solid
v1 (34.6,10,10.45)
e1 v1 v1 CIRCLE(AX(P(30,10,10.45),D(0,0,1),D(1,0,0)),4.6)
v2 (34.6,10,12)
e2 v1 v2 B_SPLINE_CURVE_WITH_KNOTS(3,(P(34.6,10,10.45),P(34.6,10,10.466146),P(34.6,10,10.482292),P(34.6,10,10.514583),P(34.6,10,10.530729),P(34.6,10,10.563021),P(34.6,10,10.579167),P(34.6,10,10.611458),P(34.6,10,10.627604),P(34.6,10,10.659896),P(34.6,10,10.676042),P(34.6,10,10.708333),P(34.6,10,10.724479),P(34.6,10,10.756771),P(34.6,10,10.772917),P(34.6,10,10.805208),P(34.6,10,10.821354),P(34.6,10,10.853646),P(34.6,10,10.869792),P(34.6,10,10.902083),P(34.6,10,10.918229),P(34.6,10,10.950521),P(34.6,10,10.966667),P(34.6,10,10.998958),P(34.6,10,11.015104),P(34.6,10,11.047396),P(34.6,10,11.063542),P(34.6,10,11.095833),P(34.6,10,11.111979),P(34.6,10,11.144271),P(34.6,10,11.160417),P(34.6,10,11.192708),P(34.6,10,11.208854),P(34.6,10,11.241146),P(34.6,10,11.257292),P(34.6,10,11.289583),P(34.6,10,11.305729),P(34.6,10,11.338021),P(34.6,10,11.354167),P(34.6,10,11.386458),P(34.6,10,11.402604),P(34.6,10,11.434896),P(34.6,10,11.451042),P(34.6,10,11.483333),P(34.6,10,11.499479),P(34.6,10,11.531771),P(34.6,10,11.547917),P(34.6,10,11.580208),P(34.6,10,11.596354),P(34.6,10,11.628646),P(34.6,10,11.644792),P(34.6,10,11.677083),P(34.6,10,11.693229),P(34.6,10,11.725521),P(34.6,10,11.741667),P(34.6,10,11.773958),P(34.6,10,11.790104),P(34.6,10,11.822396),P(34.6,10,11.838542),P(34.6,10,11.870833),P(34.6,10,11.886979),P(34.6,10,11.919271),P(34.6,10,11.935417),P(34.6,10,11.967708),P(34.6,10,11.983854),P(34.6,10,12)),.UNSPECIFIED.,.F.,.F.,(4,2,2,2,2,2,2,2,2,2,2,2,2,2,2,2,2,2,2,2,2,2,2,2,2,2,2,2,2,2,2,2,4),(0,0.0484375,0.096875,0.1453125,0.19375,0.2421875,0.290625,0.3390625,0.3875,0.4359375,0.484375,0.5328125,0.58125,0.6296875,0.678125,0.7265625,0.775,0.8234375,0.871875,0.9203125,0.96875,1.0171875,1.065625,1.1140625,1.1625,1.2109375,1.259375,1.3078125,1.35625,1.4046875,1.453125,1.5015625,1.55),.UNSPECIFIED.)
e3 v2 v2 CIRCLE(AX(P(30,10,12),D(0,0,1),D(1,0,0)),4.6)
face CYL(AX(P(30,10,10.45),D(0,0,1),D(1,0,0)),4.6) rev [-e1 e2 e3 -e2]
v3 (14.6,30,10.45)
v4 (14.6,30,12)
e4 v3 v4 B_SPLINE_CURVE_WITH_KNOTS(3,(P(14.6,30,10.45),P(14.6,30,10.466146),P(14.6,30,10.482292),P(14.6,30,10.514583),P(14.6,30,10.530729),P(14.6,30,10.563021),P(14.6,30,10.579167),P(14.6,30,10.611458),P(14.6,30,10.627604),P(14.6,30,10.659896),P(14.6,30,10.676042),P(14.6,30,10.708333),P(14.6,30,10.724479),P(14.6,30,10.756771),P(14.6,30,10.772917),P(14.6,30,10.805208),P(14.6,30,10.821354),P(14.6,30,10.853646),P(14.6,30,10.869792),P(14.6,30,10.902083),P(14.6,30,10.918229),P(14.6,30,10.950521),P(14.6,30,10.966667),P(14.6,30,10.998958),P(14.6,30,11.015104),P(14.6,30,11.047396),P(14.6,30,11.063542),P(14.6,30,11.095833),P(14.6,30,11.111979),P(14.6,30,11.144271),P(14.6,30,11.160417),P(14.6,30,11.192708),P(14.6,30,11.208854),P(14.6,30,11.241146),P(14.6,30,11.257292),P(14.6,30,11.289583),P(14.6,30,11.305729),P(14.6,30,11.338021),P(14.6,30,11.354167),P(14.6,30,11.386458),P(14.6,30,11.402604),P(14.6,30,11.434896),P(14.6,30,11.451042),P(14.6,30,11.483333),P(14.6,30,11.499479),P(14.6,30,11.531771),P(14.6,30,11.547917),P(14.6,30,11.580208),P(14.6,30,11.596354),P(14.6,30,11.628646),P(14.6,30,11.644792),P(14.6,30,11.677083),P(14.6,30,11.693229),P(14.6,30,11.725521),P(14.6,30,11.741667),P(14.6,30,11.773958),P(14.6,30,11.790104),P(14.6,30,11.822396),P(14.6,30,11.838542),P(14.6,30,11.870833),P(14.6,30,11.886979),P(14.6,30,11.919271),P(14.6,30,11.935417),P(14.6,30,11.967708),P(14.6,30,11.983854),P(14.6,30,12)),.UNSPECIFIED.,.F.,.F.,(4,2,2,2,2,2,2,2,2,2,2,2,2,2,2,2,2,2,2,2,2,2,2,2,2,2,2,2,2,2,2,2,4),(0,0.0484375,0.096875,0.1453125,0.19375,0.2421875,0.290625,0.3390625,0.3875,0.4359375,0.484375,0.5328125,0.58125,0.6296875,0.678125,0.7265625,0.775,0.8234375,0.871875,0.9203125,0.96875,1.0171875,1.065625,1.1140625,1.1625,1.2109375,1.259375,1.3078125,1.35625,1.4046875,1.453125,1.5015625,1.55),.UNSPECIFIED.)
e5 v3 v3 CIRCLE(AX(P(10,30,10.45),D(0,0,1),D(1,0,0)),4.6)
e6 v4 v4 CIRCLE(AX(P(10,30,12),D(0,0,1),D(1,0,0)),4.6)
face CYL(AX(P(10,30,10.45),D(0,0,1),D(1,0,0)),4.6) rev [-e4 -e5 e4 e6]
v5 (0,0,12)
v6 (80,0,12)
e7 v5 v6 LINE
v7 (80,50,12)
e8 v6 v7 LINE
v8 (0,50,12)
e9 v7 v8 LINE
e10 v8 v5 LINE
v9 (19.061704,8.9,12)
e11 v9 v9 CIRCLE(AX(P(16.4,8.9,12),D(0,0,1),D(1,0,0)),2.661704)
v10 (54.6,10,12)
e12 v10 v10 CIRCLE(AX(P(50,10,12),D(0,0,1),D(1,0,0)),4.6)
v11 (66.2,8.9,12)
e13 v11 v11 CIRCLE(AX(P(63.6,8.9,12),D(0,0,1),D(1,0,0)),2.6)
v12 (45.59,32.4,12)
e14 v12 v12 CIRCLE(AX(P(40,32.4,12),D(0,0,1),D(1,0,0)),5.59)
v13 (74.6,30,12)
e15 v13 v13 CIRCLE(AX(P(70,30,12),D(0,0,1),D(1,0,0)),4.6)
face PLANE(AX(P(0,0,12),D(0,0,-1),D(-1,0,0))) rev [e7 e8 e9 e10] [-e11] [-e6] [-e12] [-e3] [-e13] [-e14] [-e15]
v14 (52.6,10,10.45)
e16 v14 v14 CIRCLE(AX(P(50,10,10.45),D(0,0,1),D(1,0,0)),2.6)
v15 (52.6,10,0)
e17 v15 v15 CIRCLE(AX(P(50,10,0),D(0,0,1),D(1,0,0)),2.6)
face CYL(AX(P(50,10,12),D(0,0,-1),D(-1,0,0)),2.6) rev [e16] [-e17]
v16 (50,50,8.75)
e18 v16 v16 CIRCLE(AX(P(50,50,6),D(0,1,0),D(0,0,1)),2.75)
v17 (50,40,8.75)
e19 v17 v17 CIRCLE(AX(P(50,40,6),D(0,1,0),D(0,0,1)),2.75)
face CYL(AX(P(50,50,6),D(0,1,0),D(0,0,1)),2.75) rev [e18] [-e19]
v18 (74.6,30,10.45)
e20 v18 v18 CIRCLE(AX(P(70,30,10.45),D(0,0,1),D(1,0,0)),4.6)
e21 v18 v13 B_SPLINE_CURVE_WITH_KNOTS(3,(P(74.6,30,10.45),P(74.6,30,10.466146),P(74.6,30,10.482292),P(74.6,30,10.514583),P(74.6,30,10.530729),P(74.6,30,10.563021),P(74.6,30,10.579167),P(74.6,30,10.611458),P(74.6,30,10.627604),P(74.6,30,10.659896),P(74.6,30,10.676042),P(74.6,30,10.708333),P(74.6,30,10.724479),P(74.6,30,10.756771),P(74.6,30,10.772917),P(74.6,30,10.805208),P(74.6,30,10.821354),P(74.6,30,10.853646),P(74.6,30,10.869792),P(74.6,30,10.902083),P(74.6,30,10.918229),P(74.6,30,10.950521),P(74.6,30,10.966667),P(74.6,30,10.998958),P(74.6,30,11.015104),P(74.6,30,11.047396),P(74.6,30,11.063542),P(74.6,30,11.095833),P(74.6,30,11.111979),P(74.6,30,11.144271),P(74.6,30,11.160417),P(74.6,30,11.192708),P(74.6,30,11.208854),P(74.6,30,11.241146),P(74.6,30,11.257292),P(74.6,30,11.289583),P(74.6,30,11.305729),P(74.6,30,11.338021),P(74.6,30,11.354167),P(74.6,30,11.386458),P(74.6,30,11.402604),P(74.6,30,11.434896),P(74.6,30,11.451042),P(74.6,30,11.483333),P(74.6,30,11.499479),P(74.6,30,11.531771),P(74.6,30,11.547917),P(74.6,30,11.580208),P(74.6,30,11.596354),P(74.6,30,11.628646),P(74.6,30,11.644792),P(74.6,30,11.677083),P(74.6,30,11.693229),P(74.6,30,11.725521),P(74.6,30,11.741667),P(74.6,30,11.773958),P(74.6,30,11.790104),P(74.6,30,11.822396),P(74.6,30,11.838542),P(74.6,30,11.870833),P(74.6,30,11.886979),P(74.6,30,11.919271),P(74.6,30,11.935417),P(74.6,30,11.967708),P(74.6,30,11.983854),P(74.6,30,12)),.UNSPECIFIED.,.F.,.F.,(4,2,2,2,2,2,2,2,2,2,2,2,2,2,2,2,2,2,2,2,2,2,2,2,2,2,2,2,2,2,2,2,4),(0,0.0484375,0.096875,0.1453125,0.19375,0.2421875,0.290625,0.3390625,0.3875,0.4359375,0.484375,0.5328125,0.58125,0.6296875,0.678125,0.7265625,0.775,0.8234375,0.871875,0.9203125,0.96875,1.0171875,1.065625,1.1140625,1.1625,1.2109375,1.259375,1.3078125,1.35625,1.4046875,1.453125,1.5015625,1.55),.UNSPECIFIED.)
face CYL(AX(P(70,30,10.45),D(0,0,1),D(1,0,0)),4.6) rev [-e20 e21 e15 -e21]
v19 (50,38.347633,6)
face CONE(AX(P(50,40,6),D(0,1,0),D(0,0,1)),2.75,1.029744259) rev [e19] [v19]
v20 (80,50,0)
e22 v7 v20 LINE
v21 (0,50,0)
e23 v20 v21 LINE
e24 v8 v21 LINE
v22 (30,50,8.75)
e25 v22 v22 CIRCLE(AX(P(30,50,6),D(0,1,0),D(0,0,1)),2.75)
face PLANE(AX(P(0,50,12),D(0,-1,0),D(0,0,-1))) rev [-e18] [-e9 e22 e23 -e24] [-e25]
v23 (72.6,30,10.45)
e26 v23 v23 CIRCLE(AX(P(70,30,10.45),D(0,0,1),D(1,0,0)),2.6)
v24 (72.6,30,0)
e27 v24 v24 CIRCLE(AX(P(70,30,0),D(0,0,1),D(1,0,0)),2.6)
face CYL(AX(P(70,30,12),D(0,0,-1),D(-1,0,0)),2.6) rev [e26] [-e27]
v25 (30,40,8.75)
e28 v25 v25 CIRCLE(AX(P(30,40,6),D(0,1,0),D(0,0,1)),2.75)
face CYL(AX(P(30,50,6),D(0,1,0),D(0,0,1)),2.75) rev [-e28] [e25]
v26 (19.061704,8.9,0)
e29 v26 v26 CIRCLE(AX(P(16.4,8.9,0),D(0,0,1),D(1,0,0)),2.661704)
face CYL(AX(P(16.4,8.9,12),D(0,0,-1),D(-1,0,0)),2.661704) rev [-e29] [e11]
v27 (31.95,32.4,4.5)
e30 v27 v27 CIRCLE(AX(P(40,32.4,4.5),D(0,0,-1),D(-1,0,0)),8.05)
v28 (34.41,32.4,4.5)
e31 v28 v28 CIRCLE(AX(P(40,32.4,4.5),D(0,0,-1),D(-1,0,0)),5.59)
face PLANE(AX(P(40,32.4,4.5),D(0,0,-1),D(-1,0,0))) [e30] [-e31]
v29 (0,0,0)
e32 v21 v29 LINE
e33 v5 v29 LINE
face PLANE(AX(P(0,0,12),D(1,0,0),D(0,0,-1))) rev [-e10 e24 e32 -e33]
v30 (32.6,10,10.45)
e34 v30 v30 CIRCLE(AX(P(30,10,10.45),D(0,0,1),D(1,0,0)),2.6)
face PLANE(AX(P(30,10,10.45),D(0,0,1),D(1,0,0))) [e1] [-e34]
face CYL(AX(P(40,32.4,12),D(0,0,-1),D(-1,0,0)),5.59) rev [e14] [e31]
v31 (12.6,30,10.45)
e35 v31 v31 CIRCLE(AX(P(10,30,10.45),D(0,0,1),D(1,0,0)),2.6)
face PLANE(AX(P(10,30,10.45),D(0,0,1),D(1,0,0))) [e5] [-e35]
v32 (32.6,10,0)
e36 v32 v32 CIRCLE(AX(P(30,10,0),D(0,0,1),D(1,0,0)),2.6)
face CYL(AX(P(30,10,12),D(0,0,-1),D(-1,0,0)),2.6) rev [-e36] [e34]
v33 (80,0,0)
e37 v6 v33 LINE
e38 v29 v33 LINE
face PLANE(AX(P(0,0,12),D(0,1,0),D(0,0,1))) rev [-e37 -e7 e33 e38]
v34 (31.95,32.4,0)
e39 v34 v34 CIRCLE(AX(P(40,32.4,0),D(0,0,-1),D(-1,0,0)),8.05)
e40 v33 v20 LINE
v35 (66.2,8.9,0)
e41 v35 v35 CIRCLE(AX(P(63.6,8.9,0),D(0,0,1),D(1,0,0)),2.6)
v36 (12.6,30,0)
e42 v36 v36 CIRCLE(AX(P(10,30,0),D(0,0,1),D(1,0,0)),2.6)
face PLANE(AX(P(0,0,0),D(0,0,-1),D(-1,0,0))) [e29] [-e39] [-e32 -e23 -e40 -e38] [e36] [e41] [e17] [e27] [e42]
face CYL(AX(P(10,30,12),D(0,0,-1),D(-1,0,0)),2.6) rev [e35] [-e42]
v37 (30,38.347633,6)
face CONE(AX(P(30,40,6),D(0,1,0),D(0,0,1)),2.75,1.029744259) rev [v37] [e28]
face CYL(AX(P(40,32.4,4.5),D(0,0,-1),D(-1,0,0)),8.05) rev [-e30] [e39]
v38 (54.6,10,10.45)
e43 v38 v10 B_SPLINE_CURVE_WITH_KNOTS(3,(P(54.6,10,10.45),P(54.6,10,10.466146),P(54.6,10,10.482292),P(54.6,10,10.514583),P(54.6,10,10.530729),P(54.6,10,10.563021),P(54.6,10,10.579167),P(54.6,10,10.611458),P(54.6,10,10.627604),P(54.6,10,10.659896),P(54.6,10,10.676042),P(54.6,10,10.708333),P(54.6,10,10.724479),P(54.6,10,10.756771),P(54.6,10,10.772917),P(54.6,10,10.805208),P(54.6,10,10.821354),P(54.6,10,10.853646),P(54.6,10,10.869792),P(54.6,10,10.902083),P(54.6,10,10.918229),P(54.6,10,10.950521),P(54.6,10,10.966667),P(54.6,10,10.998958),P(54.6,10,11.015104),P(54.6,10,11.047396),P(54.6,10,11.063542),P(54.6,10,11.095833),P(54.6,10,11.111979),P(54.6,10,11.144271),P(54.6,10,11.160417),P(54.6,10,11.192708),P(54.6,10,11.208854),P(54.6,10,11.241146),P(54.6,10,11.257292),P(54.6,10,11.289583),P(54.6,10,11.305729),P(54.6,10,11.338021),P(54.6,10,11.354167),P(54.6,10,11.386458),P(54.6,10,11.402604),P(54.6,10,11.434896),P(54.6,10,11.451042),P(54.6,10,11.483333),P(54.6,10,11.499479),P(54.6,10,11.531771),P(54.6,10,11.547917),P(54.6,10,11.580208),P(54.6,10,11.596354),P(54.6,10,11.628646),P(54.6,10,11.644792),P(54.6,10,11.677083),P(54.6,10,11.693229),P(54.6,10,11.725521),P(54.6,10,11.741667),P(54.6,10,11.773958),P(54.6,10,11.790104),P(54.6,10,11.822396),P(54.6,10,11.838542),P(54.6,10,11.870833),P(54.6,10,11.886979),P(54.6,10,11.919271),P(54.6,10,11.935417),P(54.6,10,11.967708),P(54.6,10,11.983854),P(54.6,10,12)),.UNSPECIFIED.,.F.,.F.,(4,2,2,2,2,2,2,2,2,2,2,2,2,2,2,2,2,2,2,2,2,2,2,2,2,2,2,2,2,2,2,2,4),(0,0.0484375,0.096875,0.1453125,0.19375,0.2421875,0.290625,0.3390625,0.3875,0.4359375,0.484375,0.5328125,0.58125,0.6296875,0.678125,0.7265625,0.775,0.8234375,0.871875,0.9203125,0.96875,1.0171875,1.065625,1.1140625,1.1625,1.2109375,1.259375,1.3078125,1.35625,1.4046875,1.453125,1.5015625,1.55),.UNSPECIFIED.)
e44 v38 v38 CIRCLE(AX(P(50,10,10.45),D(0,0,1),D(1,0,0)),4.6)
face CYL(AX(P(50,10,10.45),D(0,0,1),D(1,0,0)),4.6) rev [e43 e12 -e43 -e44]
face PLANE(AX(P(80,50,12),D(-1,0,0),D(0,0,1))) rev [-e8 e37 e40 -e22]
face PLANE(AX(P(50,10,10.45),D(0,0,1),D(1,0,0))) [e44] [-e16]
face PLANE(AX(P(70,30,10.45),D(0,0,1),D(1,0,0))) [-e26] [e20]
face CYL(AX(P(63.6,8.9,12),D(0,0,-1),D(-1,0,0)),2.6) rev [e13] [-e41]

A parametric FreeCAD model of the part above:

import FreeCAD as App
import Part
import Sketcher
from FreeCAD import Vector


def add_polygon(sketch, points):
    """Adds a closed chain of lines whose ends are joined by coincident constraints."""
    first, n = sketch.GeometryCount, len(points)
    for a, b in zip(points, points[1:] + points[:1]):
        sketch.addGeometry(Part.LineSegment(App.Vector(*a, 0), App.Vector(*b, 0)), False)
    for i in range(n):
        sketch.addConstraint(Sketcher.Constraint("Coincident", first + i, 2, first + (i + 1) % n, 1))

doc = App.newDocument("Part")
body = doc.addObject("PartDesign::Body", "Body")

# Sketch on XY plane
sketch1 = body.newObject("Sketcher::SketchObject", "Sketch")
sketch1.AttachmentSupport = (doc.getObject("XY_Plane"), [""])
sketch1.MapMode = "FlatFace"
add_polygon(sketch1, [(0, 50), (0, 0), (80, 0), (80, 50)])  # lines 0-3
sketch1.addGeometry(Part.Circle(Vector(16.4, 8.9, 0), Vector(0, 0, 1), 2.7), False)  # 4
sketch1.addGeometry(Part.Circle(Vector(30, 10, 0), Vector(0, 0, 1), 2.6), False)  # 5
sketch1.addGeometry(Part.Circle(Vector(50, 10, 0), Vector(0, 0, 1), 2.6), False)  # 6
sketch1.addGeometry(Part.Circle(Vector(63.6, 8.9, 0), Vector(0, 0, 1), 2.6), False)  # 7
sketch1.addGeometry(Part.Circle(Vector(10, 30, 0), Vector(0, 0, 1), 2.6), False)  # 8
sketch1.addGeometry(Part.Circle(Vector(70, 30, 0), Vector(0, 0, 1), 2.6), False)  # 9
sketch1.addGeometry(Part.Circle(Vector(40, 32.4, 0), Vector(0, 0, 1), 5.6), False)  # 10
sketch1.addConstraint(Sketcher.Constraint("Vertical", 0))
sketch1.addConstraint(Sketcher.Constraint("Horizontal", 1))
sketch1.addConstraint(Sketcher.Constraint("Vertical", 2))
sketch1.addConstraint(Sketcher.Constraint("Horizontal", 3))
sketch1.addConstraint(Sketcher.Constraint("Coincident", 0, 2, -1, 1))
sketch1.addConstraint(Sketcher.Constraint("Equal", 5, 6))
sketch1.addConstraint(Sketcher.Constraint("Equal", 6, 7))
sketch1.addConstraint(Sketcher.Constraint("Equal", 7, 8))
sketch1.addConstraint(Sketcher.Constraint("Equal", 8, 9))
sketch1.addConstraint(Sketcher.Constraint("Horizontal", 5, 3, 6, 3))
sketch1.addConstraint(Sketcher.Constraint("Horizontal", 4, 3, 7, 3))
sketch1.addConstraint(Sketcher.Constraint("Horizontal", 8, 3, 9, 3))
sketch1.addConstraint(Sketcher.Constraint("Diameter", 5, 5.2))
sketch1.addConstraint(Sketcher.Constraint("Diameter", 10, 11.18))
sketch1.addConstraint(Sketcher.Constraint("DistanceX", 1, 1, 1, 2, 80.0))
sketch1.addConstraint(Sketcher.Constraint("DistanceY", 0, 2, 0, 1, 50.0))
sketch1.addConstraint(Sketcher.Constraint("DistanceX", -1, 1, 5, 3, 30.0))
sketch1.addConstraint(Sketcher.Constraint("DistanceY", -1, 1, 5, 3, 10.0))
sketch1.addConstraint(Sketcher.Constraint("DistanceX", -1, 1, 6, 3, 50.0))
sketch1.addConstraint(Sketcher.Constraint("DistanceX", -1, 1, 8, 3, 10.0))
sketch1.addConstraint(Sketcher.Constraint("DistanceY", -1, 1, 8, 3, 30.0))
sketch1.addConstraint(Sketcher.Constraint("DistanceX", -1, 1, 9, 3, 70.0))
sketch1.addConstraint(Sketcher.Constraint("DistanceX", -1, 1, 10, 3, 40.0))
sketch1.addConstraint(Sketcher.Constraint("DistanceX", -1, 1, 4, 3, 16.4))
sketch1.addConstraint(Sketcher.Constraint("DistanceY", -1, 1, 4, 3, 8.9))
sketch1.addConstraint(Sketcher.Constraint("DistanceX", -1, 1, 7, 3, 63.6))
sketch1.addConstraint(Sketcher.Constraint("DistanceY", -1, 1, 10, 3, 32.4))
sketch1.addConstraint(Sketcher.Constraint("Diameter", 4, 5.323407))
pad1 = body.newObject("PartDesign::Pad", "Pad")
pad1.Profile = sketch1
pad1.Length = 12

# Sketch on XY plane
sketch2 = body.newObject("Sketcher::SketchObject", "Sketch001")
sketch2.AttachmentSupport = (doc.getObject("XY_Plane"), [""])
sketch2.MapMode = "FlatFace"
sketch2.AttachmentOffset = App.Placement(Vector(0, 0, 12), App.Rotation())
sketch2.addGeometry(Part.Circle(Vector(10, 30, 0), Vector(0, 0, 1), 4.6), False)
sketch2.addGeometry(Part.Circle(Vector(70, 30, 0), Vector(0, 0, 1), 4.6), False)
sketch2.addGeometry(Part.Circle(Vector(30, 10, 0), Vector(0, 0, 1), 4.6), False)
sketch2.addGeometry(Part.Circle(Vector(50, 10, 0), Vector(0, 0, 1), 4.6), False)
sketch2.addConstraint(Sketcher.Constraint("Equal", 0, 1))
sketch2.addConstraint(Sketcher.Constraint("Equal", 1, 2))
sketch2.addConstraint(Sketcher.Constraint("Equal", 2, 3))
sketch2.addConstraint(Sketcher.Constraint("Horizontal", 0, 3, 1, 3))
sketch2.addConstraint(Sketcher.Constraint("Horizontal", 2, 3, 3, 3))
sketch2.addConstraint(Sketcher.Constraint("Diameter", 0, 9.2))
sketch2.addConstraint(Sketcher.Constraint("DistanceX", -1, 1, 0, 3, 10.0))
sketch2.addConstraint(Sketcher.Constraint("DistanceY", -1, 1, 0, 3, 30.0))
sketch2.addConstraint(Sketcher.Constraint("DistanceX", -1, 1, 1, 3, 70.0))
sketch2.addConstraint(Sketcher.Constraint("DistanceX", -1, 1, 2, 3, 30.0))
sketch2.addConstraint(Sketcher.Constraint("DistanceY", -1, 1, 2, 3, 10.0))
sketch2.addConstraint(Sketcher.Constraint("DistanceX", -1, 1, 3, 3, 50.0))
pocket1 = body.newObject("PartDesign::Pocket", "Pocket")
pocket1.Profile = sketch2
pocket1.Length = 1.55

# Sketch on XY plane
sketch3 = body.newObject("Sketcher::SketchObject", "Sketch002")
sketch3.AttachmentSupport = (doc.getObject("XY_Plane"), [""])
sketch3.MapMode = "FlatFace"
sketch3.addGeometry(Part.Circle(Vector(40, 32, 0), Vector(0, 0, 1), 8), False)
sketch3.addConstraint(Sketcher.Constraint("Diameter", 0, 16.1))
sketch3.addConstraint(Sketcher.Constraint("DistanceX", -1, 1, 0, 3, 40.0))
sketch3.addConstraint(Sketcher.Constraint("DistanceY", -1, 1, 0, 3, 32.4))
pocket2 = body.newObject("PartDesign::Pocket", "Pocket001")
pocket2.Profile = sketch3
pocket2.Length = 4.5
pocket2.Reversed = True

# Sketch on XZ plane
sketch4 = body.newObject("Sketcher::SketchObject", "Sketch003")
sketch4.AttachmentSupport = (doc.getObject("XZ_Plane"), [""])
sketch4.MapMode = "FlatFace"
sketch4.AttachmentOffset = App.Placement(Vector(0, 0, -50), App.Rotation())
sketch4.addGeometry(Part.Circle(Vector(30, 6, 0), Vector(0, 0, 1), 2.8), False)
sketch4.addConstraint(Sketcher.Constraint("Diameter", 0, 5.5))
sketch4.addConstraint(Sketcher.Constraint("DistanceX", -1, 1, 0, 3, 30.0))
sketch4.addConstraint(Sketcher.Constraint("DistanceY", -1, 1, 0, 3, 6.0))
doc.recompute()
hole = body.newObject("PartDesign::Hole", "Hole")
hole.Profile = sketch4
hole.ThreadType = "None"
hole.Diameter = 5.5
hole.DepthType = "Dimension"
hole.Depth = 10
hole.DrillPoint = "Angled"
hole.DrillPointAngle = 118
hole.Reversed = True

# Sketch on XZ plane
sketch5 = body.newObject("Sketcher::SketchObject", "Sketch004")
sketch5.AttachmentSupport = (doc.getObject("XZ_Plane"), [""])
sketch5.MapMode = "FlatFace"
sketch5.AttachmentOffset = App.Placement(Vector(0, 0, -50), App.Rotation())
sketch5.addGeometry(Part.Circle(Vector(50, 6, 0), Vector(0, 0, 1), 2.8), False)
sketch5.addConstraint(Sketcher.Constraint("Diameter", 0, 5.5))
sketch5.addConstraint(Sketcher.Constraint("DistanceX", -1, 1, 0, 3, 50.0))
sketch5.addConstraint(Sketcher.Constraint("DistanceY", -1, 1, 0, 3, 6.0))
doc.recompute()
hole2 = body.newObject("PartDesign::Hole", "Hole001")
hole2.Profile = sketch5
hole2.ThreadType = "None"
hole2.Diameter = 5.5
hole2.DepthType = "Dimension"
hole2.Depth = 10
hole2.DrillPoint = "Angled"
hole2.DrillPointAngle = 118
hole2.Reversed = True

doc.recompute()
